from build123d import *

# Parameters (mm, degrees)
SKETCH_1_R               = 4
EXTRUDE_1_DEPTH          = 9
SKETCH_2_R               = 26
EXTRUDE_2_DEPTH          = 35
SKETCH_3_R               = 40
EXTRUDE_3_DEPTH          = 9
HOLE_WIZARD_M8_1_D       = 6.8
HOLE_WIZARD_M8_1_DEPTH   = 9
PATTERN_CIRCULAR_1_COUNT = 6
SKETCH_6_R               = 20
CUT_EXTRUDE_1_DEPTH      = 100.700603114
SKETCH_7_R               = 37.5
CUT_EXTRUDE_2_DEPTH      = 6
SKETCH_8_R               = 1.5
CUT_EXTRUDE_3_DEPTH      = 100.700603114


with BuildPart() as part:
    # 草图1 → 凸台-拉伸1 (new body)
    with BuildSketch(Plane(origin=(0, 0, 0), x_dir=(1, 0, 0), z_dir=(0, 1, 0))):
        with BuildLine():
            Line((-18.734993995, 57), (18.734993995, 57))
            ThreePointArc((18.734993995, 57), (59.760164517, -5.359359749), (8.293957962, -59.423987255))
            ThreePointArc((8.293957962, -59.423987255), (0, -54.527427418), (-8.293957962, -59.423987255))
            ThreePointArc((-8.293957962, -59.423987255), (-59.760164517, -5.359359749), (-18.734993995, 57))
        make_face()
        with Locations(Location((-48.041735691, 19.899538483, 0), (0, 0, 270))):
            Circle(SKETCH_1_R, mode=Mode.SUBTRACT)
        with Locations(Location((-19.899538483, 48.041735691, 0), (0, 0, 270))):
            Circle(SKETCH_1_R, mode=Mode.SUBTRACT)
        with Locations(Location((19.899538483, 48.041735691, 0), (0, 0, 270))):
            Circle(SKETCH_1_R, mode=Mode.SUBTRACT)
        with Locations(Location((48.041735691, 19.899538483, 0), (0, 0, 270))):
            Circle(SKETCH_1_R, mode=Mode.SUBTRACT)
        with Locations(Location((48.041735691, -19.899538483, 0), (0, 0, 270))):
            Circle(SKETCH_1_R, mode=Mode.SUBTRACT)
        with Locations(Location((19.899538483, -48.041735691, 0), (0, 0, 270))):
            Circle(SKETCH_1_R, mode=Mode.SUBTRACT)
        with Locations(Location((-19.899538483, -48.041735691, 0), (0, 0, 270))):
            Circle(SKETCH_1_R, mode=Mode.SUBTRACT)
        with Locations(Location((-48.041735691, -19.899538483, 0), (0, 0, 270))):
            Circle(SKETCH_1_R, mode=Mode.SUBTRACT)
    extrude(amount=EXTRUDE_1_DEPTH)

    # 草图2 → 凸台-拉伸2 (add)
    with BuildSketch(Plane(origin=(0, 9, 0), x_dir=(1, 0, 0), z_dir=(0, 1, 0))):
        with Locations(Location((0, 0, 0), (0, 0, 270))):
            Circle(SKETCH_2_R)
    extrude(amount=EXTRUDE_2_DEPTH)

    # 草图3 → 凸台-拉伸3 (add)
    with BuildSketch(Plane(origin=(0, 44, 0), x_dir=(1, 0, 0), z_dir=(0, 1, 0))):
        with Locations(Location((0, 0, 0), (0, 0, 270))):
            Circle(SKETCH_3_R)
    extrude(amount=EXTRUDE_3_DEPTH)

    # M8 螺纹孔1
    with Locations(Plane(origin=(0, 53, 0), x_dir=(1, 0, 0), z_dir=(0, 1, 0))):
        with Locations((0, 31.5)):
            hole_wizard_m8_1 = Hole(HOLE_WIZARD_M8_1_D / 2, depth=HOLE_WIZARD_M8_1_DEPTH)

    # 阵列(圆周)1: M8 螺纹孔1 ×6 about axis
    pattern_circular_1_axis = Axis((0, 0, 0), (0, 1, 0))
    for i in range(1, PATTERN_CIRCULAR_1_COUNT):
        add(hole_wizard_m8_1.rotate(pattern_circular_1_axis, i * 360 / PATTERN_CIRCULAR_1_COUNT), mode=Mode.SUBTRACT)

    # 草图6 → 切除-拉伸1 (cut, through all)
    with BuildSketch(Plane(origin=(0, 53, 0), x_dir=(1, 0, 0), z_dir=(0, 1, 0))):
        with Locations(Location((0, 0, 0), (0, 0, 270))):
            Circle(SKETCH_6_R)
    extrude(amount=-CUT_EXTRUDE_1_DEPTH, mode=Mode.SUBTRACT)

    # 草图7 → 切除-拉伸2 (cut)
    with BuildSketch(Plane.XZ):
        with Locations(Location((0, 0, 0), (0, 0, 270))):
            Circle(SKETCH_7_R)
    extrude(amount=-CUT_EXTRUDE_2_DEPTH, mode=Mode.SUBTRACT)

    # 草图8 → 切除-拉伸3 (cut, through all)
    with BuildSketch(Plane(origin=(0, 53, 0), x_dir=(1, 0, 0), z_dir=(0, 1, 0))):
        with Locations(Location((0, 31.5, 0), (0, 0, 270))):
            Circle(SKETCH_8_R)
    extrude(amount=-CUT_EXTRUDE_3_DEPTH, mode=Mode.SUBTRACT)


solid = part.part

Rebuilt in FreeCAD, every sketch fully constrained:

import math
import FreeCAD as App
import Part
import Sketcher
from FreeCAD import Vector
Q = App.Units.Quantity

doc = App.newDocument("Part")
body = doc.addObject("PartDesign::Body", "Body")

# Sketch on XZ plane
sketch1 = body.newObject("Sketcher::SketchObject", "Sketch")
sketch1.AttachmentSupport = (doc.getObject("XZ_Plane"), [""])
sketch1.MapMode = "FlatFace"
sketch1.addGeometry(Part.LineSegment(Vector(18.7, -57, 0), Vector(-18.7, -57, 0)), False)
sketch1.addGeometry(Part.ArcOfCircle(Part.Circle(Vector(0, 0, 0), Vector(0, 0, 1), 60), math.radians(98), math.radians(252)), False)
sketch1.addGeometry(Part.ArcOfCircle(Part.Circle(Vector(0, 64, 0), Vector(0, 0, 1), 9.5), math.radians(-151), math.radians(-29)), False)
sketch1.addGeometry(Part.ArcOfCircle(Part.Circle(Vector(0, 0, 0), Vector(0, 0, 1), 60), math.radians(-72), math.radians(82)), False)
sketch1.addGeometry(Part.Circle(Vector(19.9, 48, 0), Vector(0, 0, 1), 4), False)
sketch1.addGeometry(Part.Circle(Vector(48, 19.9, 0), Vector(0, 0, 1), 4), False)
sketch1.addGeometry(Part.Circle(Vector(-19.9, 48, 0), Vector(0, 0, 1), 4), False)
sketch1.addGeometry(Part.Circle(Vector(-48, 19.9, 0), Vector(0, 0, 1), 4), False)
sketch1.addGeometry(Part.Circle(Vector(48, -19.9, 0), Vector(0, 0, 1), 4), False)
sketch1.addGeometry(Part.Circle(Vector(19.9, -48, 0), Vector(0, 0, 1), 4), False)
sketch1.addGeometry(Part.Circle(Vector(-48, -19.9, 0), Vector(0, 0, 1), 4), False)
sketch1.addGeometry(Part.Circle(Vector(-19.9, -48, 0), Vector(0, 0, 1), 4), False)
sketch1.addConstraint(Sketcher.Constraint("Coincident", 0, 2, 1, 2))
sketch1.addConstraint(Sketcher.Constraint("Coincident", 1, 1, 2, 1))
sketch1.addConstraint(Sketcher.Constraint("Coincident", 2, 2, 3, 2))
sketch1.addConstraint(Sketcher.Constraint("Coincident", 3, 1, 0, 1))
sketch1.addConstraint(Sketcher.Constraint("Horizontal", 0))
sketch1.addConstraint(Sketcher.Constraint("Coincident", 1, 3, -1, 1))
sketch1.addConstraint(Sketcher.Constraint("Coincident", 3, 3, -1, 1))
sketch1.addConstraint(Sketcher.Constraint("Equal", 1, 3))
sketch1.addConstraint(Sketcher.Constraint("Equal", 4, 5))
sketch1.addConstraint(Sketcher.Constraint("Equal", 5, 6))
sketch1.addConstraint(Sketcher.Constraint("Equal", 6, 7))
sketch1.addConstraint(Sketcher.Constraint("Equal", 7, 8))
sketch1.addConstraint(Sketcher.Constraint("Equal", 8, 9))
sketch1.addConstraint(Sketcher.Constraint("Equal", 9, 10))
sketch1.addConstraint(Sketcher.Constraint("Equal", 10, 11))
sketch1.addConstraint(Sketcher.Constraint("Symmetric", 7, 3, 8, 3, -1, 1))
sketch1.addConstraint(Sketcher.Constraint("Symmetric", 6, 3, 9, 3, -1, 1))
sketch1.addConstraint(Sketcher.Constraint("Symmetric", 5, 3, 10, 3, -1, 1))
sketch1.addConstraint(Sketcher.Constraint("Symmetric", 4, 3, 11, 3, -1, 1))
sketch1.addConstraint(Sketcher.Constraint("Symmetric", 4, 3, 6, 3, -2))
sketch1.addConstraint(Sketcher.Constraint("Symmetric", 5, 3, 7, 3, -2))
sketch1.addConstraint(Sketcher.Constraint("PointOnObject", 2, 3, -2))
sketch1.addConstraint(Sketcher.Constraint("Diameter", 4, Q("8 mm")))
sketch1.addConstraint(Sketcher.Constraint("Radius", 1, Q("60 mm")))
sketch1.addConstraint(Sketcher.Constraint("DistanceY", -1, 1, 2, 3, Q("64 mm")))
sketch1.addConstraint(Sketcher.Constraint("DistanceY", 0, 2, -1, 1, Q("57 mm")))
sketch1.addConstraint(Sketcher.Constraint("Radius", 2, Q("9.472573 mm")))
sketch1.addConstraint(Sketcher.Constraint("DistanceX", -1, 1, 4, 3, Q("19.899538 mm")))
sketch1.addConstraint(Sketcher.Constraint("DistanceY", -1, 1, 5, 3, Q("19.899538 mm")))
sketch1.addConstraint(Sketcher.Constraint("DistanceX", 10, 3, 0, 2, Q("29.306742 mm")))
sketch1.addConstraint(Sketcher.Constraint("DistanceY", 6, 3, 1, 1, Q("11.382252 mm")))
pad1 = body.newObject("PartDesign::Pad", "Pad")
pad1.Profile = sketch1
pad1.Length = 9
pad1.Reversed = True

# Sketch on XZ plane
sketch2 = body.newObject("Sketcher::SketchObject", "Sketch001")
sketch2.AttachmentSupport = (doc.getObject("XZ_Plane"), [""])
sketch2.MapMode = "FlatFace"
sketch2.AttachmentOffset = App.Placement(Vector(0, 0, -9), App.Rotation())
sketch2.addGeometry(Part.Circle(Vector(0, 0, 0), Vector(0, 0, 1), 26), False)
sketch2.addConstraint(Sketcher.Constraint("Coincident", 0, 3, -1, 1))
sketch2.addConstraint(Sketcher.Constraint("Diameter", 0, Q("52 mm")))
pad2 = body.newObject("PartDesign::Pad", "Pad001")
pad2.Profile = sketch2
pad2.Length = 35
pad2.Reversed = True

# Sketch on XZ plane
sketch3 = body.newObject("Sketcher::SketchObject", "Sketch002")
sketch3.AttachmentSupport = (doc.getObject("XZ_Plane"), [""])
sketch3.MapMode = "FlatFace"
sketch3.AttachmentOffset = App.Placement(Vector(0, 0, -44), App.Rotation())
sketch3.addGeometry(Part.Circle(Vector(0, 0, 0), Vector(0, 0, 1), 40), False)
sketch3.addConstraint(Sketcher.Constraint("Coincident", 0, 3, -1, 1))
sketch3.addConstraint(Sketcher.Constraint("Diameter", 0, Q("80 mm")))
pad3 = body.newObject("PartDesign::Pad", "Pad002")
pad3.Profile = sketch3
pad3.Length = 9
pad3.Reversed = True

# Sketch on XZ plane
sketch4 = body.newObject("Sketcher::SketchObject", "Sketch003")
sketch4.AttachmentSupport = (doc.getObject("XZ_Plane"), [""])
sketch4.MapMode = "FlatFace"
sketch4.AttachmentOffset = App.Placement(Vector(0, 0, -53), App.Rotation())
sketch4.addGeometry(Part.Circle(Vector(0, -31.5, 0), Vector(0, 0, 1), 3.4), False)
sketch4.addConstraint(Sketcher.Constraint("PointOnObject", 0, 3, -2))
sketch4.addConstraint(Sketcher.Constraint("Diameter", 0, Q("6.8 mm")))
sketch4.addConstraint(Sketcher.Constraint("DistanceY", 0, 3, -1, 1, Q("31.5 mm")))
doc.recompute()
hole = body.newObject("PartDesign::Hole", "Hole")
hole.Profile = sketch4
hole.ThreadType = "None"
hole.Diameter = 6.8
hole.DepthType = "Dimension"
hole.Depth = 9
hole.DrillPoint = "Flat"
hole.Reversed = True
doc.recompute()

polarpattern = body.newObject("PartDesign::PolarPattern", "PolarPattern")
polarpattern.Originals = [hole]
polarpattern.Axis = (doc.getObject("Y_Axis"), [""])
polarpattern.Angle = 360
polarpattern.Occurrences = 6
body.Tip = polarpattern

# Sketch on XZ plane
sketch5 = body.newObject("Sketcher::SketchObject", "Sketch004")
sketch5.AttachmentSupport = (doc.getObject("XZ_Plane"), [""])
sketch5.MapMode = "FlatFace"
sketch5.AttachmentOffset = App.Placement(Vector(0, 0, -53), App.Rotation())
sketch5.addGeometry(Part.Circle(Vector(0, 0, 0), Vector(0, 0, 1), 20), False)
sketch5.addConstraint(Sketcher.Constraint("Coincident", 0, 3, -1, 1))
sketch5.addConstraint(Sketcher.Constraint("Diameter", 0, Q("40 mm")))
pocket1 = body.newObject("PartDesign::Pocket", "Pocket")
pocket1.Profile = sketch5
pocket1.Type = "ThroughAll"
pocket1.Reversed = True

# Sketch on XZ plane
sketch6 = body.newObject("Sketcher::SketchObject", "Sketch005")
sketch6.AttachmentSupport = (doc.getObject("XZ_Plane"), [""])
sketch6.MapMode = "FlatFace"
sketch6.addGeometry(Part.Circle(Vector(0, 0, 0), Vector(0, 0, 1), 38), False)
sketch6.addConstraint(Sketcher.Constraint("Coincident", 0, 3, -1, 1))
sketch6.addConstraint(Sketcher.Constraint("Diameter", 0, Q("75 mm")))
pocket2 = body.newObject("PartDesign::Pocket", "Pocket001")
pocket2.Profile = sketch6
pocket2.Length = 6

# Sketch on XZ plane
sketch7 = body.newObject("Sketcher::SketchObject", "Sketch006")
sketch7.AttachmentSupport = (doc.getObject("XZ_Plane"), [""])
sketch7.MapMode = "FlatFace"
sketch7.AttachmentOffset = App.Placement(Vector(0, 0, -53), App.Rotation())
sketch7.addGeometry(Part.Circle(Vector(0, -31.5, 0), Vector(0, 0, 1), 1.5), False)
sketch7.addConstraint(Sketcher.Constraint("PointOnObject", 0, 3, -2))
sketch7.addConstraint(Sketcher.Constraint("Diameter", 0, Q("3 mm")))
sketch7.addConstraint(Sketcher.Constraint("DistanceY", 0, 3, -1, 1, Q("31.5 mm")))
pocket3 = body.newObject("PartDesign::Pocket", "Pocket002")
pocket3.Profile = sketch7
pocket3.Type = "ThroughAll"
pocket3.Reversed = True

doc.recompute()
